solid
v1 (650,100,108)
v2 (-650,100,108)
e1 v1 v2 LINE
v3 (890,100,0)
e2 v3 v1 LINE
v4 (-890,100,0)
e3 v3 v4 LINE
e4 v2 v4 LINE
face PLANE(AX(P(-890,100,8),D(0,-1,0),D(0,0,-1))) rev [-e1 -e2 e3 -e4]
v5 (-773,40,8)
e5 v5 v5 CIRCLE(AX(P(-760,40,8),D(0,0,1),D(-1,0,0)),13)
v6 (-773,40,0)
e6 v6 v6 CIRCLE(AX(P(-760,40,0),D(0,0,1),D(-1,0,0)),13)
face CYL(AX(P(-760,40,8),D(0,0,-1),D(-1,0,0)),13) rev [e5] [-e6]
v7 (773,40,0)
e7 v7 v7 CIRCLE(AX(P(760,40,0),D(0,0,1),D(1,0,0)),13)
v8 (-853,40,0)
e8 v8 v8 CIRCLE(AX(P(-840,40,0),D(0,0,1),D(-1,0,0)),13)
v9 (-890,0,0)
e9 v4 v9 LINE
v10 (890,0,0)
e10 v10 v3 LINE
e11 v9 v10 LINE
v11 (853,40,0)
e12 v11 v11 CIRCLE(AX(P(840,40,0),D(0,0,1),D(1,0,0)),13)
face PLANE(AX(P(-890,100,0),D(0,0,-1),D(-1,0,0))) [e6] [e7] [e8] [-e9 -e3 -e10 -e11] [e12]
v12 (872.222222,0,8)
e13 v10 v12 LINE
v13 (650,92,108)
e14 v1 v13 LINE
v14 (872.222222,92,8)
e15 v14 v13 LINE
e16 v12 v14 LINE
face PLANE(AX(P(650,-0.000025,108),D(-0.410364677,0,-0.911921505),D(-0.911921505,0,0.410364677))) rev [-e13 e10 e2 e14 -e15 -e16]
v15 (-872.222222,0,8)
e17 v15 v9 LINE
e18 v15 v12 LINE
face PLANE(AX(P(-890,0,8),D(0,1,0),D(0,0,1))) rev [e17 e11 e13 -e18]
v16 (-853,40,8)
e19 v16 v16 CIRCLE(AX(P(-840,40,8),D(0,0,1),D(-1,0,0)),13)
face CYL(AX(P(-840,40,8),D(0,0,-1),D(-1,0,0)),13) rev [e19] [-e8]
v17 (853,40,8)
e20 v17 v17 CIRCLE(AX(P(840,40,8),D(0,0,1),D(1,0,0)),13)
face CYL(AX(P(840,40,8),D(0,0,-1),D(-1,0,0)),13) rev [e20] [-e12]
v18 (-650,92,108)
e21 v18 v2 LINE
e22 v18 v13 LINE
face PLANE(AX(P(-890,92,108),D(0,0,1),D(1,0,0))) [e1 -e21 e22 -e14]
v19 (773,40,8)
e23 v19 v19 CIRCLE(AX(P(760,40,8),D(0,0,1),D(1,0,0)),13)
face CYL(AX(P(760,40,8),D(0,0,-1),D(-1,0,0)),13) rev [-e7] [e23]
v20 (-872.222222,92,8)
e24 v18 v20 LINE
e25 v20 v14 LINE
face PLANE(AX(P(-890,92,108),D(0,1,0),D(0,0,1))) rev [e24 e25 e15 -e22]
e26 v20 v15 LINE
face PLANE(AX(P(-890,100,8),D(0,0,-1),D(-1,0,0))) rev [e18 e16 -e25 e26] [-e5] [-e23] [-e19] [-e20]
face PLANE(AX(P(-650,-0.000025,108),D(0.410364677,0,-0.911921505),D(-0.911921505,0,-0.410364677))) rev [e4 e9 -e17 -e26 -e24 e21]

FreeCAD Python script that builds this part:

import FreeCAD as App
import Part
import Sketcher
Q = App.Units.Quantity


def add_polygon(sketch, points):
    """Adds a closed chain of lines whose ends are joined by coincident constraints."""
    first, n = sketch.GeometryCount, len(points)
    for a, b in zip(points, points[1:] + points[:1]):
        sketch.addGeometry(Part.LineSegment(App.Vector(*a, 0), App.Vector(*b, 0)), False)
    for i in range(n):
        sketch.addConstraint(Sketcher.Constraint("Coincident", first + i, 2, first + (i + 1) % n, 1))

doc = App.newDocument("Part")
body = doc.addObject("PartDesign::Body", "Body")

# Sketch on XY plane
sketch1 = body.newObject("Sketcher::SketchObject", "Sketch")
sketch1.AttachmentSupport = (doc.getObject("XY_Plane"), [""])
sketch1.MapMode = "FlatFace"
add_polygon(sketch1, [(-890, 100), (-890, 0), (890, 0), (890, 100)])  # lines 0-3
sketch1.addGeometry(Part.Circle(App.Vector(-840, 40, 0), App.Vector(0, 0, 1), 13), False)  # 4
sketch1.addGeometry(Part.Circle(App.Vector(-760, 40, 0), App.Vector(0, 0, 1), 13), False)  # 5
sketch1.addGeometry(Part.Circle(App.Vector(760, 40, 0), App.Vector(0, 0, 1), 13), False)  # 6
sketch1.addGeometry(Part.Circle(App.Vector(840, 40, 0), App.Vector(0, 0, 1), 13), False)  # 7
sketch1.addConstraint([
    Sketcher.Constraint("Vertical", 0),
    Sketcher.Constraint("Horizontal", 1),
    Sketcher.Constraint("Vertical", 2),
    Sketcher.Constraint("Horizontal", 3),
    Sketcher.Constraint("Equal", 4, 5),
    Sketcher.Constraint("Equal", 5, 6),
    Sketcher.Constraint("Equal", 6, 7),
    Sketcher.Constraint("Symmetric", 0, 2, 1, 2, -1, 1),
    Sketcher.Constraint("Symmetric", 5, 3, 6, 3, -2),
    Sketcher.Constraint("Symmetric", 4, 3, 7, 3, -2),
    Sketcher.Constraint("Horizontal", 4, 3, 5, 3),
    Sketcher.Constraint("Diameter", 4, Q("26 mm")),
    Sketcher.Constraint("DistanceX", 1, 1, 1, 2, Q("1780 mm")),
    Sketcher.Constraint("DistanceY", 0, 2, 0, 1, Q("100 mm")),
    Sketcher.Constraint("DistanceX", 4, 3, -1, 1, Q("840 mm")),
    Sketcher.Constraint("DistanceY", -1, 1, 4, 3, Q("40 mm")),
    Sketcher.Constraint("DistanceX", 5, 3, -1, 1, Q("760 mm")),
])
pad1 = body.newObject("PartDesign::Pad", "Pad")
pad1.Profile = sketch1
pad1.Length = 8

# Sketch on XY plane
sketch2 = body.newObject("Sketcher::SketchObject", "Sketch001")
sketch2.AttachmentSupport = (doc.getObject("XY_Plane"), [""])
sketch2.MapMode = "FlatFace"
sketch2.AttachmentOffset = App.Placement(App.Vector(0, 0, 8), App.Rotation())
add_polygon(sketch2, [(-890, 100), (-890, 92), (890, 92), (890, 100)])  # lines 0-3
sketch2.addConstraint([
    Sketcher.Constraint("Vertical", 0),
    Sketcher.Constraint("Horizontal", 1),
    Sketcher.Constraint("Vertical", 2),
    Sketcher.Constraint("Horizontal", 3),
    Sketcher.Constraint("DistanceX", 1, 1, 1, 2, Q("1780 mm")),
    Sketcher.Constraint("DistanceY", 0, 2, 0, 1, Q("8 mm")),
    Sketcher.Constraint("DistanceX", 0, 2, -1, 1, Q("890 mm")),
    Sketcher.Constraint("DistanceY", -1, 1, 0, 2, Q("92 mm")),
])
pad2 = body.newObject("PartDesign::Pad", "Pad001")
pad2.Profile = sketch2
pad2.Length = 100

# Sketch on XZ plane
sketch3 = body.newObject("Sketcher::SketchObject", "Sketch002")
sketch3.AttachmentSupport = (doc.getObject("XZ_Plane"), [""])
sketch3.MapMode = "FlatFace"
sketch3.AttachmentOffset = App.Placement(App.Vector(0, 0, -100), App.Rotation())
add_polygon(sketch3, [(890, 0), (650, 108), (890, 108)])  # lines 0-2
add_polygon(sketch3, [(-890, 108), (-650, 108), (-890, 0)])  # lines 3-5
sketch3.addConstraint([
    Sketcher.Constraint("Horizontal", 1),
    Sketcher.Constraint("Vertical", 2),
    Sketcher.Constraint("Horizontal", 3),
    Sketcher.Constraint("Vertical", 5),
    Sketcher.Constraint("Symmetric", 2, 2, 4, 2, -1, 1),
    Sketcher.Constraint("Symmetric", 0, 2, 3, 2, -2),
    Sketcher.Constraint("PointOnObject", 2, 2, -1),
    Sketcher.Constraint("DistanceX", 1, 1, 1, 2, Q("240 mm")),
    Sketcher.Constraint("DistanceY", 2, 2, 2, 1, Q("108 mm")),
    Sketcher.Constraint("DistanceX", -1, 1, 0, 2, Q("650 mm")),
])
pocket1 = body.newObject("PartDesign::Pocket", "Pocket")
pocket1.Profile = sketch3
pocket1.Type = "ThroughAll"
pocket1.Reversed = True

doc.recompute()
